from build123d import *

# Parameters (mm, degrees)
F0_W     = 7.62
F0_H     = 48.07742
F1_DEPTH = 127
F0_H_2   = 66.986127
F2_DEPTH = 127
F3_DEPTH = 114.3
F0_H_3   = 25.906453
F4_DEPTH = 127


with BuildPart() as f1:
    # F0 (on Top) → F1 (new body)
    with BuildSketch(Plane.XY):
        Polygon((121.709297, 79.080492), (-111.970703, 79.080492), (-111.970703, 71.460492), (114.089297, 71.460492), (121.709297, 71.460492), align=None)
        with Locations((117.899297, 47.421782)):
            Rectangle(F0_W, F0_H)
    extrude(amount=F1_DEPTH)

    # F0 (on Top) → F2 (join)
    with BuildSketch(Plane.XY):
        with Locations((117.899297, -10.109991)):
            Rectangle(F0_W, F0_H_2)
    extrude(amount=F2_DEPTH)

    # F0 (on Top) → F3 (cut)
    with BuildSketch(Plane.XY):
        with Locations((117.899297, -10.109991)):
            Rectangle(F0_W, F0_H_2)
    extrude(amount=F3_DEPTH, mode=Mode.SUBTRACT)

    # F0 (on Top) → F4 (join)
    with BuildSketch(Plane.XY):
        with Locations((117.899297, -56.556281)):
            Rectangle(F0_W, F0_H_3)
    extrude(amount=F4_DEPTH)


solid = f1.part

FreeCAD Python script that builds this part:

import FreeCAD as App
import Part
import Sketcher
Q = App.Units.Quantity

doc = App.newDocument("Part")
body = doc.addObject("PartDesign::Body", "Body")

# Sketch on XY plane
sketch1 = doc.addObject("Sketcher::SketchObject", "Sketch")
body.addObject(sketch1)
sketch1.AttachmentSupport = (doc.XY_Plane, [""])
sketch1.MapMode = "FlatFace"
sketch1.addGeometry(Part.LineSegment(App.Vector(122, 79, 0), App.Vector(-112, 79, 0)), False)
sketch1.addGeometry(Part.LineSegment(App.Vector(-112, 79, 0), App.Vector(-112, 71, 0)), False)
sketch1.addGeometry(Part.LineSegment(App.Vector(-112, 71, 0), App.Vector(114, 71, 0)), False)
sketch1.addGeometry(Part.LineSegment(App.Vector(114, 71, 0), App.Vector(114, 23, 0)), False)
sketch1.addGeometry(Part.LineSegment(App.Vector(114, 23, 0), App.Vector(122, 23, 0)), False)
sketch1.addGeometry(Part.LineSegment(App.Vector(122, 23, 0), App.Vector(122, 79, 0)), False)
sketch1.addConstraint(Sketcher.Constraint("Coincident", 0, 2, 1, 1))
sketch1.addConstraint(Sketcher.Constraint("Coincident", 1, 2, 2, 1))
sketch1.addConstraint(Sketcher.Constraint("Coincident", 2, 2, 3, 1))
sketch1.addConstraint(Sketcher.Constraint("Coincident", 3, 2, 4, 1))
sketch1.addConstraint(Sketcher.Constraint("Coincident", 4, 2, 5, 1))
sketch1.addConstraint(Sketcher.Constraint("Coincident", 5, 2, 0, 1))
sketch1.addConstraint(Sketcher.Constraint("Horizontal", 0))
sketch1.addConstraint(Sketcher.Constraint("Vertical", 1))
sketch1.addConstraint(Sketcher.Constraint("Horizontal", 2))
sketch1.addConstraint(Sketcher.Constraint("Vertical", 3))
sketch1.addConstraint(Sketcher.Constraint("Horizontal", 4))
sketch1.addConstraint(Sketcher.Constraint("Vertical", 5))
sketch1.addConstraint(Sketcher.Constraint("Equal", 4, 1))
sketch1.addConstraint(Sketcher.Constraint("DistanceX", 0, 2, 0, 1, Q("9.2 in")))
sketch1.addConstraint(Sketcher.Constraint("DistanceX", 2, 1, 2, 2, Q("8.9 in")))
sketch1.addConstraint(Sketcher.Constraint("DistanceY", 3, 2, 3, 1, Q("48.07742 mm")))
sketch1.addConstraint(Sketcher.Constraint("DistanceY", -1, 1, 3, 2, Q("23.383072 mm")))
sketch1.addConstraint(Sketcher.Constraint("DistanceX", 0, 2, -1, 1, Q("111.970703 mm")))
pad1 = doc.addObject("PartDesign::Pad", "Pad")
body.addObject(pad1)
pad1.Profile = sketch1
pad1.Length = Q("5 in")

# Sketch on XY plane
sketch2 = doc.addObject("Sketcher::SketchObject", "Sketch001")
body.addObject(sketch2)
sketch2.AttachmentSupport = (doc.XY_Plane, [""])
sketch2.MapMode = "FlatFace"
sketch2.addGeometry(Part.LineSegment(App.Vector(114, 23, 0), App.Vector(114, -44, 0)), False)
sketch2.addGeometry(Part.LineSegment(App.Vector(114, -44, 0), App.Vector(122, -44, 0)), False)
sketch2.addGeometry(Part.LineSegment(App.Vector(122, -44, 0), App.Vector(122, 23, 0)), False)
sketch2.addGeometry(Part.LineSegment(App.Vector(122, 23, 0), App.Vector(114, 23, 0)), False)
sketch2.addConstraint(Sketcher.Constraint("Coincident", 0, 2, 1, 1))
sketch2.addConstraint(Sketcher.Constraint("Coincident", 1, 2, 2, 1))
sketch2.addConstraint(Sketcher.Constraint("Coincident", 2, 2, 3, 1))
sketch2.addConstraint(Sketcher.Constraint("Coincident", 3, 2, 0, 1))
sketch2.addConstraint(Sketcher.Constraint("Vertical", 0))
sketch2.addConstraint(Sketcher.Constraint("Horizontal", 1))
sketch2.addConstraint(Sketcher.Constraint("Vertical", 2))
sketch2.addConstraint(Sketcher.Constraint("Horizontal", 3))
sketch2.addConstraint(Sketcher.Constraint("DistanceX", 1, 1, 1, 2, Q("0.3 in")))
sketch2.addConstraint(Sketcher.Constraint("DistanceY", 0, 2, 0, 1, Q("66.986127 mm")))
sketch2.addConstraint(Sketcher.Constraint("DistanceX", -1, 1, 0, 2, Q("114.089297 mm")))
sketch2.addConstraint(Sketcher.Constraint("DistanceY", 0, 2, -1, 1, Q("43.603054 mm")))
pad2 = doc.addObject("PartDesign::Pad", "Pad001")
body.addObject(pad2)
pad2.Profile = sketch2
pad2.Length = Q("5 in")

# Sketch on XY plane
sketch3 = doc.addObject("Sketcher::SketchObject", "Sketch002")
body.addObject(sketch3)
sketch3.AttachmentSupport = (doc.XY_Plane, [""])
sketch3.MapMode = "FlatFace"
sketch3.addGeometry(Part.LineSegment(App.Vector(114, 23, 0), App.Vector(114, -44, 0)), False)
sketch3.addGeometry(Part.LineSegment(App.Vector(114, -44, 0), App.Vector(122, -44, 0)), False)
sketch3.addGeometry(Part.LineSegment(App.Vector(122, -44, 0), App.Vector(122, 23, 0)), False)
sketch3.addGeometry(Part.LineSegment(App.Vector(122, 23, 0), App.Vector(114, 23, 0)), False)
sketch3.addConstraint(Sketcher.Constraint("Coincident", 0, 2, 1, 1))
sketch3.addConstraint(Sketcher.Constraint("Coincident", 1, 2, 2, 1))
sketch3.addConstraint(Sketcher.Constraint("Coincident", 2, 2, 3, 1))
sketch3.addConstraint(Sketcher.Constraint("Coincident", 3, 2, 0, 1))
sketch3.addConstraint(Sketcher.Constraint("Vertical", 0))
sketch3.addConstraint(Sketcher.Constraint("Horizontal", 1))
sketch3.addConstraint(Sketcher.Constraint("Vertical", 2))
sketch3.addConstraint(Sketcher.Constraint("Horizontal", 3))
sketch3.addConstraint(Sketcher.Constraint("DistanceX", 1, 1, 1, 2, Q("0.3 in")))
sketch3.addConstraint(Sketcher.Constraint("DistanceY", 0, 2, 0, 1, Q("66.986127 mm")))
sketch3.addConstraint(Sketcher.Constraint("DistanceX", -1, 1, 0, 2, Q("114.089297 mm")))
sketch3.addConstraint(Sketcher.Constraint("DistanceY", 0, 2, -1, 1, Q("43.603054 mm")))
pocket1 = doc.addObject("PartDesign::Pocket", "Pocket")
body.addObject(pocket1)
pocket1.Profile = sketch3
pocket1.Length = Q("4.5 in")
pocket1.Reversed = True

# Sketch on XY plane
sketch4 = doc.addObject("Sketcher::SketchObject", "Sketch003")
body.addObject(sketch4)
sketch4.AttachmentSupport = (doc.XY_Plane, [""])
sketch4.MapMode = "FlatFace"
sketch4.addGeometry(Part.LineSegment(App.Vector(114, -44, 0), App.Vector(114, -70, 0)), False)
sketch4.addGeometry(Part.LineSegment(App.Vector(114, -70, 0), App.Vector(122, -70, 0)), False)
sketch4.addGeometry(Part.LineSegment(App.Vector(122, -70, 0), App.Vector(122, -44, 0)), False)
sketch4.addGeometry(Part.LineSegment(App.Vector(122, -44, 0), App.Vector(114, -44, 0)), False)
sketch4.addConstraint(Sketcher.Constraint("Coincident", 0, 2, 1, 1))
sketch4.addConstraint(Sketcher.Constraint("Coincident", 1, 2, 2, 1))
sketch4.addConstraint(Sketcher.Constraint("Coincident", 2, 2, 3, 1))
sketch4.addConstraint(Sketcher.Constraint("Coincident", 3, 2, 0, 1))
sketch4.addConstraint(Sketcher.Constraint("Vertical", 0))
sketch4.addConstraint(Sketcher.Constraint("Horizontal", 1))
sketch4.addConstraint(Sketcher.Constraint("Vertical", 2))
sketch4.addConstraint(Sketcher.Constraint("Horizontal", 3))
sketch4.addConstraint(Sketcher.Constraint("DistanceX", 1, 1, 1, 2, Q("0.3 in")))
sketch4.addConstraint(Sketcher.Constraint("DistanceY", 0, 2, 0, 1, Q("25.906453 mm")))
sketch4.addConstraint(Sketcher.Constraint("DistanceX", -1, 1, 0, 2, Q("114.089297 mm")))
sketch4.addConstraint(Sketcher.Constraint("DistanceY", 0, 2, -1, 1, Q("69.509507 mm")))
pad3 = doc.addObject("PartDesign::Pad", "Pad002")
body.addObject(pad3)
pad3.Profile = sketch4
pad3.Length = Q("5 in")

doc.recompute()
